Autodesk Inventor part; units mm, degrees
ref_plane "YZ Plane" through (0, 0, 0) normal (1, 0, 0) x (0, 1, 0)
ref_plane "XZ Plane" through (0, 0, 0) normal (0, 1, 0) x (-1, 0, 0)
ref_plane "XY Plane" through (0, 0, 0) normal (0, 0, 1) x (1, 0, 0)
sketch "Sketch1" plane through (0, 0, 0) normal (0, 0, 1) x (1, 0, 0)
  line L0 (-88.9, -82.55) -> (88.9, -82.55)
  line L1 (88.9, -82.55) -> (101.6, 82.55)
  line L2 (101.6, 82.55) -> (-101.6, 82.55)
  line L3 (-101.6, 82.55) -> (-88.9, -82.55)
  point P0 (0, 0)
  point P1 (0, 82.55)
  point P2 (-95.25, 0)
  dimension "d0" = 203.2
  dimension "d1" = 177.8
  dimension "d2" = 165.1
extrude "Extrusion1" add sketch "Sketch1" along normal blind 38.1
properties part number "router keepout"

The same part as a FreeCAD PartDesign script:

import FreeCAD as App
import Part
import Sketcher
Q = App.Units.Quantity


def add_polygon(sketch, points):
    """Adds a closed chain of lines whose ends are joined by coincident constraints."""
    first, n = sketch.GeometryCount, len(points)
    for a, b in zip(points, points[1:] + points[:1]):
        sketch.addGeometry(Part.LineSegment(App.Vector(*a, 0), App.Vector(*b, 0)), False)
    for i in range(n):
        sketch.addConstraint(Sketcher.Constraint("Coincident", first + i, 2, first + (i + 1) % n, 1))

doc = App.newDocument("Part")
params = doc.addObject("Spreadsheet::Sheet", "Params")
for row, (alias, value) in enumerate([
    ("sketch1_width", "7 in"),
    ("sketch1_width2", "8 in"),
    ("pad1_length", "1.5 in"),
], start=1):
    params.set(f"A{row}", alias)
    params.set(f"B{row}", "=" + value)
    params.setAlias(f"B{row}", alias)

body = doc.addObject("PartDesign::Body", "Body")

# Sketch on XY plane
sketch1 = body.newObject("Sketcher::SketchObject", "Sketch")
sketch1.AttachmentSupport = (doc.getObject("XY_Plane"), [""])
sketch1.MapMode = "FlatFace"
add_polygon(sketch1, [(-102, 83), (-89, -83), (89, -83), (102, 83)])  # lines 0-3
sketch1.addConstraint([
    Sketcher.Constraint("Horizontal", 1),
    Sketcher.Constraint("Horizontal", 3),
    Sketcher.Constraint("Equal", 0, 2),
    Sketcher.Constraint("DistanceX", 1, 1, 1, 2, Q("7 in")),
    Sketcher.Constraint("DistanceX", 3, 2, 3, 1, Q("8 in")),
    Sketcher.Constraint("DistanceY", 1, 2, 2, 2, Q("6.5 in")),
    Sketcher.Constraint("DistanceX", -1, 1, 2, 2, Q("4 in")),
    Sketcher.Constraint("DistanceY", 0, 2, -1, 1, Q("3.25 in")),
])
sketch1.setExpression("Constraints[7]", "Params.sketch1_width")
sketch1.setExpression("Constraints[8]", "Params.sketch1_width2")
pad1 = body.newObject("PartDesign::Pad", "Pad")
pad1.Profile = sketch1
pad1.setExpression("Length", "Params.pad1_length")

doc.recompute()
